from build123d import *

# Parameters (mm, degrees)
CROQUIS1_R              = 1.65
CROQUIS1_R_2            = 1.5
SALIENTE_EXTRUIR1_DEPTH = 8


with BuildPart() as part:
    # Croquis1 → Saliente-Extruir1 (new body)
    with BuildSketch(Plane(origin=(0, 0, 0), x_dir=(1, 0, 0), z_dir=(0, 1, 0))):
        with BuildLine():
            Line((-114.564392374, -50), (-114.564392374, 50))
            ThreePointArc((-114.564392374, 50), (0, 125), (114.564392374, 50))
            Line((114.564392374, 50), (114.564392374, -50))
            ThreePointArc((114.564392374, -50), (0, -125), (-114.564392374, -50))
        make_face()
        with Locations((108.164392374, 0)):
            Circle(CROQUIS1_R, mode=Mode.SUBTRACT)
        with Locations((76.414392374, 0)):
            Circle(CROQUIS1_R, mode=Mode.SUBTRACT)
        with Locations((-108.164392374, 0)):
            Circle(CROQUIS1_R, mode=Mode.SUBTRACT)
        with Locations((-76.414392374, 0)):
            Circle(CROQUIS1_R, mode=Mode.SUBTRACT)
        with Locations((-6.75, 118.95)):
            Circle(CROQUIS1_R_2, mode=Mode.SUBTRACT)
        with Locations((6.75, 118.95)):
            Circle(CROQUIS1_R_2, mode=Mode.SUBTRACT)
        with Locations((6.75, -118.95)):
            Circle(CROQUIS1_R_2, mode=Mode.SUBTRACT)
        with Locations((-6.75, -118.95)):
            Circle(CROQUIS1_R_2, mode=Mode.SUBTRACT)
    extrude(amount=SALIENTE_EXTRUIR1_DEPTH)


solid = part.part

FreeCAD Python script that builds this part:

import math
import FreeCAD as App
import Part
import Sketcher

V = App.Vector
Q = App.Units.Quantity

doc = App.newDocument("Part")
body = doc.addObject("PartDesign::Body", "Body")

# Sketch on XZ plane
sketch1 = body.newObject("Sketcher::SketchObject", "Sketch")
sketch1.AttachmentSupport = (doc.getObject("XZ_Plane"), [""])
sketch1.MapMode = "FlatFace"
sketch1.addGeometry(Part.LineSegment(V(-114.564392, -50, 0), V(-114.564392, 50, 0)), False)
sketch1.addGeometry(Part.ArcOfCircle(Part.Circle(V(0, 0, 0), V(0, 0, 1), 125), math.radians(23.578178), math.radians(156.421822)), False)
sketch1.addGeometry(Part.LineSegment(V(114.564392, 50, 0), V(114.564392, -50, 0)), False)
sketch1.addGeometry(Part.ArcOfCircle(Part.Circle(V(0, 0, 0), V(0, 0, 1), 125), math.radians(-156.421822), math.radians(-23.578178)), False)
sketch1.addGeometry(Part.Circle(V(6.75, 118.95, 0), V(0, 0, 1), 1.5), False)
sketch1.addGeometry(Part.Circle(V(108.164392, 0, 0), V(0, 0, 1), 1.65), False)
sketch1.addGeometry(Part.Circle(V(76.414392, 0, 0), V(0, 0, 1), 1.65), False)
sketch1.addGeometry(Part.Circle(V(-6.75, 118.95, 0), V(0, 0, 1), 1.5), False)
sketch1.addGeometry(Part.Circle(V(-76.414392, 0, 0), V(0, 0, 1), 1.65), False)
sketch1.addGeometry(Part.Circle(V(-108.164392, 0, 0), V(0, 0, 1), 1.65), False)
sketch1.addGeometry(Part.Circle(V(6.75, -118.95, 0), V(0, 0, 1), 1.5), False)
sketch1.addGeometry(Part.Circle(V(-6.75, -118.95, 0), V(0, 0, 1), 1.5), False)
sketch1.addConstraint(Sketcher.Constraint("Coincident", 0, 2, 1, 2))
sketch1.addConstraint(Sketcher.Constraint("Coincident", 1, 1, 2, 1))
sketch1.addConstraint(Sketcher.Constraint("Coincident", 2, 2, 3, 2))
sketch1.addConstraint(Sketcher.Constraint("Coincident", 3, 1, 0, 1))
sketch1.addConstraint(Sketcher.Constraint("Vertical", 0))
sketch1.addConstraint(Sketcher.Constraint("Vertical", 2))
sketch1.addConstraint(Sketcher.Constraint("Coincident", 1, 3, -1, 1))
sketch1.addConstraint(Sketcher.Constraint("Coincident", 3, 3, -1, 1))
sketch1.addConstraint(Sketcher.Constraint("Equal", 1, 3))
sketch1.addConstraint(Sketcher.Constraint("Equal", 5, 6))
sketch1.addConstraint(Sketcher.Constraint("Equal", 4, 7))
sketch1.addConstraint(Sketcher.Constraint("Equal", 6, 8))
sketch1.addConstraint(Sketcher.Constraint("Equal", 8, 9))
sketch1.addConstraint(Sketcher.Constraint("Equal", 7, 10))
sketch1.addConstraint(Sketcher.Constraint("Equal", 10, 11))
sketch1.addConstraint(Sketcher.Constraint("Symmetric", 6, 3, 8, 3, -1, 1))
sketch1.addConstraint(Sketcher.Constraint("Symmetric", 5, 3, 9, 3, -1, 1))
sketch1.addConstraint(Sketcher.Constraint("Symmetric", 7, 3, 10, 3, -1, 1))
sketch1.addConstraint(Sketcher.Constraint("Symmetric", 4, 3, 11, 3, -1, 1))
sketch1.addConstraint(Sketcher.Constraint("Symmetric", 4, 3, 7, 3, -2))
sketch1.addConstraint(Sketcher.Constraint("PointOnObject", 5, 3, -1))
sketch1.addConstraint(Sketcher.Constraint("PointOnObject", 6, 3, -1))
sketch1.addConstraint(Sketcher.Constraint("Horizontal", 0, 2, 1, 1))
sketch1.addConstraint(Sketcher.Constraint("Diameter", 4, Q("3 mm")))
sketch1.addConstraint(Sketcher.Constraint("Radius", 1, Q("125 mm")))
sketch1.addConstraint(Sketcher.Constraint("Diameter", 5, Q("3.3 mm")))
sketch1.addConstraint(Sketcher.Constraint("DistanceY", 0, 1, 0, 2, Q("100 mm")))
sketch1.addConstraint(Sketcher.Constraint("DistanceX", 7, 3, 4, 3, Q("13.5 mm")))
sketch1.addConstraint(Sketcher.Constraint("DistanceX", 0, 2, 9, 3, Q("6.4 mm")))
sketch1.addConstraint(Sketcher.Constraint("DistanceY", -1, 1, 4, 3, Q("118.95 mm")))
sketch1.addConstraint(Sketcher.Constraint("DistanceX", 6, 3, 5, 3, Q("31.75 mm")))
pad1 = body.newObject("PartDesign::Pad", "Pad")
pad1.Profile = sketch1
pad1.Length = 8
pad1.Reversed = True

doc.recompute()
